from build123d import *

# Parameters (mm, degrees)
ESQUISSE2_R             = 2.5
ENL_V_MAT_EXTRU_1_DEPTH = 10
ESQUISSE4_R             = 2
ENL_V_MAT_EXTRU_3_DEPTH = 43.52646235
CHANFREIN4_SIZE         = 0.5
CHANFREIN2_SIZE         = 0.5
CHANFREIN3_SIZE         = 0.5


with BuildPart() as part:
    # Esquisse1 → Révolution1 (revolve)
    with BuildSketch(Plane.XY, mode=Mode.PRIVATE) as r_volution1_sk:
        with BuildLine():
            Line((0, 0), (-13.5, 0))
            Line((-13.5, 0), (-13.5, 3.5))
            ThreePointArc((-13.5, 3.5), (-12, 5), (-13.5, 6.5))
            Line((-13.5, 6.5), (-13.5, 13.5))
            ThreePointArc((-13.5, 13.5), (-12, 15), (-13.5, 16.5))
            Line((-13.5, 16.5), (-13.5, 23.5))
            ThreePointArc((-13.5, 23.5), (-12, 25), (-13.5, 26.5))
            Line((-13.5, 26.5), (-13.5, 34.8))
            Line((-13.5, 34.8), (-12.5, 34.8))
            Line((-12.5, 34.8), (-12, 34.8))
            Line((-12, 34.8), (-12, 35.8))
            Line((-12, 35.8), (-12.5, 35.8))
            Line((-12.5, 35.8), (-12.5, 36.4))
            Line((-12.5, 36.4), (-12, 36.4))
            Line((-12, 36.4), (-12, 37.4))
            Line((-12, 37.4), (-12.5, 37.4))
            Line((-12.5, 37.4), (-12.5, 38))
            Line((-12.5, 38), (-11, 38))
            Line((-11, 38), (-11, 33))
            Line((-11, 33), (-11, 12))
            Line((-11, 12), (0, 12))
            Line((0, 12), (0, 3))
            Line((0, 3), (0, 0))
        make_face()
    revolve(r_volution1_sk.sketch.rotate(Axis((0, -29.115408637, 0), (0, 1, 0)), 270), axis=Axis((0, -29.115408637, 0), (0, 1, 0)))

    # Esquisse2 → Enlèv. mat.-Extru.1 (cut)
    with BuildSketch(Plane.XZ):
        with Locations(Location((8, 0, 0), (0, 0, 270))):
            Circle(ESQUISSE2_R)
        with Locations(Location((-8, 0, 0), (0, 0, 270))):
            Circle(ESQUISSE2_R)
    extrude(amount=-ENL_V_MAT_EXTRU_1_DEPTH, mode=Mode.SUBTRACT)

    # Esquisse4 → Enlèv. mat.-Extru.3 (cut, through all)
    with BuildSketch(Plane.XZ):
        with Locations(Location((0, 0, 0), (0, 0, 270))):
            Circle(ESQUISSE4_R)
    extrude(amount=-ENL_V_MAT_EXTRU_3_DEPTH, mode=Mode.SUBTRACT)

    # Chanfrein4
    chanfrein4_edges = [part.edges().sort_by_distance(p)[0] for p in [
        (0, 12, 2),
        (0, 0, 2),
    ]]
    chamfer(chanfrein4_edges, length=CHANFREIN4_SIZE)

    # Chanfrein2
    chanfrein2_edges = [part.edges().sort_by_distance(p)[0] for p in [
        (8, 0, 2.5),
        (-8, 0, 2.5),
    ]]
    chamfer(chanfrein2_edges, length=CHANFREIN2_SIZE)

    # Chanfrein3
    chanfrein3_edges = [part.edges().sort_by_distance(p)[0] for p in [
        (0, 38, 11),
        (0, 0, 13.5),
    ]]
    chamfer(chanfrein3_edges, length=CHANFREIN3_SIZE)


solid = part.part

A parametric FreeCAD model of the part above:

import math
import FreeCAD as App
import Part
import Sketcher
from FreeCAD import Vector
Q = App.Units.Quantity


def edges_at(feature, points):
    """Names of the edges that pass closest to the given points."""
    edges = feature.Shape.Edges
    near = lambda p: min(range(len(edges)), key=lambda i: edges[i].distToShape(Part.Vertex(*p))[0])
    return sorted({f"Edge{near(p) + 1}" for p in points})

doc = App.newDocument("Part")
body = doc.addObject("PartDesign::Body", "Body")

# Sketch on XY plane
sketch1 = doc.addObject("Sketcher::SketchObject", "Sketch")
body.addObject(sketch1)
sketch1.AttachmentSupport = (doc.XY_Plane, [""])
sketch1.MapMode = "FlatFace"
sketch1.addGeometry([
    Part.LineSegment(Vector(-13.5, 0, 0), Vector(0, 0, 0)),  # 0
    Part.LineSegment(Vector(0, 0, 0), Vector(0, 12, 0)),  # 1
    Part.LineSegment(Vector(0, 12, 0), Vector(-11, 12, 0)),  # 2
    Part.LineSegment(Vector(-11, 12, 0), Vector(-11, 38, 0)),  # 3
    Part.LineSegment(Vector(-11, 38, 0), Vector(-12.5, 38, 0)),  # 4
    Part.LineSegment(Vector(-12.5, 38, 0), Vector(-12.5, 37.4, 0)),  # 5
    Part.LineSegment(Vector(-12.5, 37.4, 0), Vector(-12, 37.4, 0)),  # 6
    Part.LineSegment(Vector(-12, 37.4, 0), Vector(-12, 36.4, 0)),  # 7
    Part.LineSegment(Vector(-12, 36.4, 0), Vector(-12.5, 36.4, 0)),  # 8
    Part.LineSegment(Vector(-12.5, 36.4, 0), Vector(-12.5, 35.8, 0)),  # 9
    Part.LineSegment(Vector(-12.5, 35.8, 0), Vector(-12, 35.8, 0)),  # 10
    Part.LineSegment(Vector(-12, 35.8, 0), Vector(-12, 34.8, 0)),  # 11
    Part.LineSegment(Vector(-12, 34.8, 0), Vector(-13.5, 34.8, 0)),  # 12
    Part.LineSegment(Vector(-13.5, 34.8, 0), Vector(-13.5, 26.5, 0)),  # 13
    Part.ArcOfCircle(Part.Circle(Vector(-13.5, 25, 0), Vector(0, 0, 1), 1.5), math.radians(-90), math.radians(90)),  # 14
    Part.LineSegment(Vector(-13.5, 23.5, 0), Vector(-13.5, 16.5, 0)),  # 15
    Part.ArcOfCircle(Part.Circle(Vector(-13.5, 15, 0), Vector(0, 0, 1), 1.5), math.radians(-90), math.radians(90)),  # 16
    Part.LineSegment(Vector(-13.5, 13.5, 0), Vector(-13.5, 6.5, 0)),  # 17
    Part.ArcOfCircle(Part.Circle(Vector(-13.5, 5, 0), Vector(0, 0, 1), 1.5), math.radians(-90), math.radians(90)),  # 18
    Part.LineSegment(Vector(-13.5, 3.5, 0), Vector(-13.5, 0, 0)),  # 19
], False)
sketch1.addConstraint([
    Sketcher.Constraint("Coincident", 0, 2, 1, 1),
    Sketcher.Constraint("Coincident", 1, 2, 2, 1),
    Sketcher.Constraint("Coincident", 2, 2, 3, 1),
    Sketcher.Constraint("Coincident", 3, 2, 4, 1),
    Sketcher.Constraint("Coincident", 4, 2, 5, 1),
    Sketcher.Constraint("Coincident", 5, 2, 6, 1),
    Sketcher.Constraint("Coincident", 6, 2, 7, 1),
    Sketcher.Constraint("Coincident", 7, 2, 8, 1),
    Sketcher.Constraint("Coincident", 8, 2, 9, 1),
    Sketcher.Constraint("Coincident", 9, 2, 10, 1),
    Sketcher.Constraint("Coincident", 10, 2, 11, 1),
    Sketcher.Constraint("Coincident", 11, 2, 12, 1),
    Sketcher.Constraint("Coincident", 12, 2, 13, 1),
    Sketcher.Constraint("Coincident", 13, 2, 14, 2),
    Sketcher.Constraint("Coincident", 14, 1, 15, 1),
    Sketcher.Constraint("Coincident", 15, 2, 16, 2),
    Sketcher.Constraint("Coincident", 16, 1, 17, 1),
    Sketcher.Constraint("Coincident", 17, 2, 18, 2),
    Sketcher.Constraint("Coincident", 18, 1, 19, 1),
    Sketcher.Constraint("Coincident", 19, 2, 0, 1),
    Sketcher.Constraint("Horizontal", 0),
    Sketcher.Constraint("Vertical", 1),
    Sketcher.Constraint("Horizontal", 2),
    Sketcher.Constraint("Vertical", 3),
    Sketcher.Constraint("Horizontal", 4),
    Sketcher.Constraint("Vertical", 5),
    Sketcher.Constraint("Horizontal", 6),
    Sketcher.Constraint("Vertical", 7),
    Sketcher.Constraint("Horizontal", 8),
    Sketcher.Constraint("Vertical", 9),
    Sketcher.Constraint("Horizontal", 10),
    Sketcher.Constraint("Vertical", 11),
    Sketcher.Constraint("Horizontal", 12),
    Sketcher.Constraint("Vertical", 13),
    Sketcher.Constraint("Vertical", 15),
    Sketcher.Constraint("Vertical", 17),
    Sketcher.Constraint("Vertical", 19),
    Sketcher.Constraint("Coincident", 0, 2, -1, 1),
    Sketcher.Constraint("Equal", 14, 16),
    Sketcher.Constraint("Equal", 16, 18),
    Sketcher.Constraint("Vertical", 14, 3, 16, 3),
    Sketcher.Constraint("Vertical", 16, 3, 18, 3),
    Sketcher.Constraint("Vertical", 5, 2, 8, 2),
    Sketcher.Constraint("Vertical", 7, 2, 10, 2),
    Sketcher.Constraint("Vertical", 18, 3, 12, 2),
    Sketcher.Constraint("Vertical", 13, 2, 14, 1),
    Sketcher.Constraint("Vertical", 15, 2, 16, 1),
    Sketcher.Constraint("Vertical", 17, 2, 18, 1),
    Sketcher.Constraint("Equal", 4, 12),
    Sketcher.Constraint("Equal", 5, 9),
    Sketcher.Constraint("Equal", 7, 11),
    Sketcher.Constraint("Equal", 15, 17),
    Sketcher.Constraint("Radius", 14, Q("1.5 mm")),
    Sketcher.Constraint("DistanceX", 2, 2, 2, 1, Q("11 mm")),
    Sketcher.Constraint("DistanceY", 1, 1, 1, 2, Q("12 mm")),
    Sketcher.Constraint("DistanceY", 3, 1, 3, 2, Q("26 mm")),
    Sketcher.Constraint("DistanceY", 7, 2, 7, 1, Q("1 mm")),
    Sketcher.Constraint("DistanceY", 15, 2, 15, 1, Q("7 mm")),
    Sketcher.Constraint("DistanceX", 0, 1, 0, 2, Q("13.5 mm")),
    Sketcher.Constraint("DistanceX", 4, 2, 4, 1, Q("1.5 mm")),
    Sketcher.Constraint("DistanceY", 5, 2, 5, 1, Q("0.6 mm")),
    Sketcher.Constraint("DistanceY", 13, 2, 13, 1, Q("8.3 mm")),
])
revolution = doc.addObject("PartDesign::Revolution", "Revolution")
body.addObject(revolution)
revolution.Profile = sketch1
revolution.ReferenceAxis = (sketch1, ["V_Axis"])
revolution.Angle = 360

# Sketch on XZ plane
sketch2 = doc.addObject("Sketcher::SketchObject", "Sketch001")
body.addObject(sketch2)
sketch2.AttachmentSupport = (doc.XZ_Plane, [""])
sketch2.MapMode = "FlatFace"
sketch2.addGeometry([
    Part.Circle(Vector(8, 0, 0), Vector(0, 0, 1), 2.5),
    Part.Circle(Vector(-8, 0, 0), Vector(0, 0, 1), 2.5),
], False)
sketch2.addConstraint([
    Sketcher.Constraint("Equal", 0, 1),
    Sketcher.Constraint("Symmetric", 0, 3, 1, 3, -1, 1),
    Sketcher.Constraint("PointOnObject", 0, 3, -1),
    Sketcher.Constraint("Diameter", 0, Q("5 mm")),
    Sketcher.Constraint("DistanceX", -1, 1, 0, 3, Q("8 mm")),
])
pocket1 = doc.addObject("PartDesign::Pocket", "Pocket")
body.addObject(pocket1)
pocket1.Profile = sketch2
pocket1.Length = 10

# Sketch on XZ plane
sketch3 = doc.addObject("Sketcher::SketchObject", "Sketch002")
body.addObject(sketch3)
sketch3.AttachmentSupport = (doc.XZ_Plane, [""])
sketch3.MapMode = "FlatFace"
sketch3.addGeometry(Part.Circle(Vector(0, 0, 0), Vector(0, 0, 1), 2), False)
sketch3.addConstraint([
    Sketcher.Constraint("Coincident", 0, 3, -1, 1),
    Sketcher.Constraint("Diameter", 0, Q("4 mm")),
])
pocket2 = doc.addObject("PartDesign::Pocket", "Pocket001")
body.addObject(pocket2)
pocket2.Profile = sketch3
pocket2.Type = "ThroughAll"
doc.recompute()

chamfer = doc.addObject("PartDesign::Chamfer", "Chamfer")
body.addObject(chamfer)
chamfer.Base = (pocket2, edges_at(pocket2, [(0, 12, 2), (0, 0, 2)]))
chamfer.Size = 0.5
doc.recompute()

chamfer2 = doc.addObject("PartDesign::Chamfer", "Chamfer001")
body.addObject(chamfer2)
chamfer2.Base = (chamfer, edges_at(chamfer, [(8, 0, 2.5), (-8, 0, 2.5)]))
chamfer2.Size = 0.5
doc.recompute()

chamfer3 = doc.addObject("PartDesign::Chamfer", "Chamfer002")
body.addObject(chamfer3)
chamfer3.Base = (chamfer2, edges_at(chamfer2, [(0, 38, 11), (0, 0, 13.5)]))
chamfer3.Size = 0.5

doc.recompute()
